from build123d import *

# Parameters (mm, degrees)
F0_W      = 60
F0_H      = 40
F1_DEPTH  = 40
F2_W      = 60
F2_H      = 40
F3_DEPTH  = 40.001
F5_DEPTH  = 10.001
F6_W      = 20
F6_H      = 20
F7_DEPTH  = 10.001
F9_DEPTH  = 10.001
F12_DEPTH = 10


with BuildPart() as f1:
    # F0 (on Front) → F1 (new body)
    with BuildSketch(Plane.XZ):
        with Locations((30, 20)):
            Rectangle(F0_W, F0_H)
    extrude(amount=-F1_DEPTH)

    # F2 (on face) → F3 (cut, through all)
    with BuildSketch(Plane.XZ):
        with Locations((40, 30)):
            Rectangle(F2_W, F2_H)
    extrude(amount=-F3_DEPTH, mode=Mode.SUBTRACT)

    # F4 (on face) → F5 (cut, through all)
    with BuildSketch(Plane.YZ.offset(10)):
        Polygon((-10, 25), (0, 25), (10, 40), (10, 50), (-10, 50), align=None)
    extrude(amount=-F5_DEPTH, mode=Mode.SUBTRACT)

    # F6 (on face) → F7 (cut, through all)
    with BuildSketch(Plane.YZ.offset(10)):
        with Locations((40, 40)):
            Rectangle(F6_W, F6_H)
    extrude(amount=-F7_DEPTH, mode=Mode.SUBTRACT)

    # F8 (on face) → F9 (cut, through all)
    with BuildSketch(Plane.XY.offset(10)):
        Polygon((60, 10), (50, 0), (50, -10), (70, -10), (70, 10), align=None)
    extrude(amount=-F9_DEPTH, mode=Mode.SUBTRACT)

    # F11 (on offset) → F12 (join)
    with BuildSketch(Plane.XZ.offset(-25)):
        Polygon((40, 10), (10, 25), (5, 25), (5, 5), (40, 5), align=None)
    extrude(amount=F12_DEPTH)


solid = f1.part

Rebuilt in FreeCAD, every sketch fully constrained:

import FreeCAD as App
import Part
import Sketcher

V = App.Vector
Q = App.Units.Quantity

doc = App.newDocument("Part")
body = doc.addObject("PartDesign::Body", "Body")

sketch1 = body.newObject("Sketcher::SketchObject", "Sketch")
sketch1.AttachmentSupport = (doc.getObject("XZ_Plane"), [""])
sketch1.MapMode = "FlatFace"
sketch1.addGeometry([
    Part.LineSegment(V(0, 40, 0), V(0, 0, 0)),
    Part.LineSegment(V(0, 0, 0), V(60, 0, 0)),
    Part.LineSegment(V(60, 0, 0), V(60, 40, 0)),
    Part.LineSegment(V(60, 40, 0), V(0, 40, 0)),
], False)
sketch1.addConstraint([
    Sketcher.Constraint("Coincident", 0, 2, 1, 1),
    Sketcher.Constraint("Coincident", 1, 2, 2, 1),
    Sketcher.Constraint("Coincident", 2, 2, 3, 1),
    Sketcher.Constraint("Coincident", 3, 2, 0, 1),
    Sketcher.Constraint("Vertical", 0),
    Sketcher.Constraint("Horizontal", 1),
    Sketcher.Constraint("Vertical", 2),
    Sketcher.Constraint("Horizontal", 3),
    Sketcher.Constraint("Coincident", 0, 2, -1, 1),
    Sketcher.Constraint("DistanceX", 1, 1, 1, 2, Q("60 mm")),
    Sketcher.Constraint("DistanceY", 0, 2, 0, 1, Q("40 mm")),
])
pad1 = body.newObject("PartDesign::Pad", "Pad")
pad1.Profile = sketch1
pad1.Length = 40
pad1.Reversed = True

sketch2 = body.newObject("Sketcher::SketchObject", "Sketch001")
sketch2.AttachmentSupport = (doc.getObject("XZ_Plane"), [""])
sketch2.MapMode = "FlatFace"
sketch2.addGeometry([
    Part.LineSegment(V(10, 50, 0), V(10, 10, 0)),
    Part.LineSegment(V(10, 10, 0), V(70, 10, 0)),
    Part.LineSegment(V(70, 10, 0), V(70, 50, 0)),
    Part.LineSegment(V(70, 50, 0), V(10, 50, 0)),
], False)
sketch2.addConstraint([
    Sketcher.Constraint("Coincident", 0, 2, 1, 1),
    Sketcher.Constraint("Coincident", 1, 2, 2, 1),
    Sketcher.Constraint("Coincident", 2, 2, 3, 1),
    Sketcher.Constraint("Coincident", 3, 2, 0, 1),
    Sketcher.Constraint("Vertical", 0),
    Sketcher.Constraint("Horizontal", 1),
    Sketcher.Constraint("Vertical", 2),
    Sketcher.Constraint("Horizontal", 3),
    Sketcher.Constraint("DistanceX", 1, 1, 1, 2, Q("60 mm")),
    Sketcher.Constraint("DistanceY", 0, 2, 0, 1, Q("40 mm")),
    Sketcher.Constraint("DistanceX", -1, 1, 0, 2, Q("10 mm")),
    Sketcher.Constraint("DistanceY", -1, 1, 0, 2, Q("10 mm")),
])
pocket1 = body.newObject("PartDesign::Pocket", "Pocket")
pocket1.Profile = sketch2
pocket1.Type = "ThroughAll"

sketch3 = body.newObject("Sketcher::SketchObject", "Sketch002")
sketch3.AttachmentSupport = (doc.getObject("YZ_Plane"), [""])
sketch3.MapMode = "FlatFace"
sketch3.AttachmentOffset = App.Placement(V(0, 0, 10), App.Rotation())
sketch3.addGeometry([
    Part.LineSegment(V(-10, 25, 0), V(0, 25, 0)),
    Part.LineSegment(V(0, 25, 0), V(10, 40, 0)),
    Part.LineSegment(V(10, 40, 0), V(10, 50, 0)),
    Part.LineSegment(V(10, 50, 0), V(-10, 50, 0)),
    Part.LineSegment(V(-10, 50, 0), V(-10, 25, 0)),
], False)
sketch3.addConstraint([
    Sketcher.Constraint("Coincident", 0, 2, 1, 1),
    Sketcher.Constraint("Coincident", 1, 2, 2, 1),
    Sketcher.Constraint("Coincident", 2, 2, 3, 1),
    Sketcher.Constraint("Coincident", 3, 2, 4, 1),
    Sketcher.Constraint("Coincident", 4, 2, 0, 1),
    Sketcher.Constraint("Horizontal", 0),
    Sketcher.Constraint("Vertical", 2),
    Sketcher.Constraint("Horizontal", 3),
    Sketcher.Constraint("Vertical", 4),
    Sketcher.Constraint("PointOnObject", 0, 2, -2),
    Sketcher.Constraint("Equal", 0, 2),
    Sketcher.Constraint("DistanceX", 0, 1, 0, 2, Q("10 mm")),
    Sketcher.Constraint("DistanceX", 3, 2, 3, 1, Q("20 mm")),
    Sketcher.Constraint("DistanceY", 4, 2, 4, 1, Q("25 mm")),
    Sketcher.Constraint("DistanceY", -1, 1, 0, 2, Q("25 mm")),
])
pocket2 = body.newObject("PartDesign::Pocket", "Pocket001")
pocket2.Profile = sketch3
pocket2.Type = "ThroughAll"

sketch4 = body.newObject("Sketcher::SketchObject", "Sketch003")
sketch4.AttachmentSupport = (doc.getObject("YZ_Plane"), [""])
sketch4.MapMode = "FlatFace"
sketch4.AttachmentOffset = App.Placement(V(0, 0, 10), App.Rotation())
sketch4.addGeometry([
    Part.LineSegment(V(30, 50, 0), V(30, 30, 0)),
    Part.LineSegment(V(30, 30, 0), V(50, 30, 0)),
    Part.LineSegment(V(50, 30, 0), V(50, 50, 0)),
    Part.LineSegment(V(50, 50, 0), V(30, 50, 0)),
], False)
sketch4.addConstraint([
    Sketcher.Constraint("Coincident", 0, 2, 1, 1),
    Sketcher.Constraint("Coincident", 1, 2, 2, 1),
    Sketcher.Constraint("Coincident", 2, 2, 3, 1),
    Sketcher.Constraint("Coincident", 3, 2, 0, 1),
    Sketcher.Constraint("Vertical", 0),
    Sketcher.Constraint("Horizontal", 1),
    Sketcher.Constraint("Vertical", 2),
    Sketcher.Constraint("Horizontal", 3),
    Sketcher.Constraint("Equal", 3, 0),
    Sketcher.Constraint("DistanceX", 1, 1, 1, 2, Q("20 mm")),
    Sketcher.Constraint("DistanceX", -1, 1, 0, 2, Q("30 mm")),
    Sketcher.Constraint("DistanceY", -1, 1, 0, 2, Q("30 mm")),
])
pocket3 = body.newObject("PartDesign::Pocket", "Pocket002")
pocket3.Profile = sketch4
pocket3.Type = "ThroughAll"

sketch5 = body.newObject("Sketcher::SketchObject", "Sketch004")
sketch5.AttachmentSupport = (doc.getObject("XY_Plane"), [""])
sketch5.MapMode = "FlatFace"
sketch5.AttachmentOffset = App.Placement(V(0, 0, 10), App.Rotation())
sketch5.addGeometry([
    Part.LineSegment(V(60, 10, 0), V(50, 0, 0)),
    Part.LineSegment(V(50, 0, 0), V(50, -10, 0)),
    Part.LineSegment(V(50, -10, 0), V(70, -10, 0)),
    Part.LineSegment(V(70, -10, 0), V(70, 10, 0)),
    Part.LineSegment(V(70, 10, 0), V(60, 10, 0)),
], False)
sketch5.addConstraint([
    Sketcher.Constraint("Coincident", 0, 2, 1, 1),
    Sketcher.Constraint("Coincident", 1, 2, 2, 1),
    Sketcher.Constraint("Coincident", 2, 2, 3, 1),
    Sketcher.Constraint("Coincident", 3, 2, 4, 1),
    Sketcher.Constraint("Coincident", 4, 2, 0, 1),
    Sketcher.Constraint("Vertical", 1),
    Sketcher.Constraint("Horizontal", 2),
    Sketcher.Constraint("Vertical", 3),
    Sketcher.Constraint("Horizontal", 4),
    Sketcher.Constraint("PointOnObject", 0, 2, -1),
    Sketcher.Constraint("Equal", 4, 1),
    Sketcher.Constraint("Equal", 2, 3),
    Sketcher.Constraint("DistanceX", 2, 1, 2, 2, Q("20 mm")),
    Sketcher.Constraint("DistanceX", 4, 2, 4, 1, Q("10 mm")),
    Sketcher.Constraint("DistanceX", -1, 1, 0, 2, Q("50 mm")),
])
pocket4 = body.newObject("PartDesign::Pocket", "Pocket003")
pocket4.Profile = sketch5
pocket4.Type = "ThroughAll"

sketch6 = body.newObject("Sketcher::SketchObject", "Sketch005")
sketch6.AttachmentSupport = (doc.getObject("XZ_Plane"), [""])
sketch6.MapMode = "FlatFace"
sketch6.AttachmentOffset = App.Placement(V(0, 0, -25), App.Rotation())
sketch6.addGeometry([
    Part.LineSegment(V(40, 10, 0), V(10, 25, 0)),
    Part.LineSegment(V(10, 25, 0), V(5, 25, 0)),
    Part.LineSegment(V(5, 25, 0), V(5, 5, 0)),
    Part.LineSegment(V(5, 5, 0), V(40, 5, 0)),
    Part.LineSegment(V(40, 5, 0), V(40, 10, 0)),
], False)
sketch6.addConstraint([
    Sketcher.Constraint("Coincident", 0, 2, 1, 1),
    Sketcher.Constraint("Coincident", 1, 2, 2, 1),
    Sketcher.Constraint("Coincident", 2, 2, 3, 1),
    Sketcher.Constraint("Coincident", 3, 2, 4, 1),
    Sketcher.Constraint("Coincident", 4, 2, 0, 1),
    Sketcher.Constraint("Horizontal", 1),
    Sketcher.Constraint("Vertical", 2),
    Sketcher.Constraint("Horizontal", 3),
    Sketcher.Constraint("Vertical", 4),
    Sketcher.Constraint("Equal", 1, 4),
    Sketcher.Constraint("DistanceX", 1, 2, 1, 1, Q("5 mm")),
    Sketcher.Constraint("DistanceX", 3, 1, 3, 2, Q("35 mm")),
    Sketcher.Constraint("DistanceY", 2, 2, 2, 1, Q("20 mm")),
    Sketcher.Constraint("DistanceX", -1, 1, 0, 2, Q("10 mm")),
    Sketcher.Constraint("DistanceY", -1, 1, 0, 2, Q("25 mm")),
])
pad2 = body.newObject("PartDesign::Pad", "Pad001")
pad2.Profile = sketch6
pad2.Length = 10

doc.recompute()
